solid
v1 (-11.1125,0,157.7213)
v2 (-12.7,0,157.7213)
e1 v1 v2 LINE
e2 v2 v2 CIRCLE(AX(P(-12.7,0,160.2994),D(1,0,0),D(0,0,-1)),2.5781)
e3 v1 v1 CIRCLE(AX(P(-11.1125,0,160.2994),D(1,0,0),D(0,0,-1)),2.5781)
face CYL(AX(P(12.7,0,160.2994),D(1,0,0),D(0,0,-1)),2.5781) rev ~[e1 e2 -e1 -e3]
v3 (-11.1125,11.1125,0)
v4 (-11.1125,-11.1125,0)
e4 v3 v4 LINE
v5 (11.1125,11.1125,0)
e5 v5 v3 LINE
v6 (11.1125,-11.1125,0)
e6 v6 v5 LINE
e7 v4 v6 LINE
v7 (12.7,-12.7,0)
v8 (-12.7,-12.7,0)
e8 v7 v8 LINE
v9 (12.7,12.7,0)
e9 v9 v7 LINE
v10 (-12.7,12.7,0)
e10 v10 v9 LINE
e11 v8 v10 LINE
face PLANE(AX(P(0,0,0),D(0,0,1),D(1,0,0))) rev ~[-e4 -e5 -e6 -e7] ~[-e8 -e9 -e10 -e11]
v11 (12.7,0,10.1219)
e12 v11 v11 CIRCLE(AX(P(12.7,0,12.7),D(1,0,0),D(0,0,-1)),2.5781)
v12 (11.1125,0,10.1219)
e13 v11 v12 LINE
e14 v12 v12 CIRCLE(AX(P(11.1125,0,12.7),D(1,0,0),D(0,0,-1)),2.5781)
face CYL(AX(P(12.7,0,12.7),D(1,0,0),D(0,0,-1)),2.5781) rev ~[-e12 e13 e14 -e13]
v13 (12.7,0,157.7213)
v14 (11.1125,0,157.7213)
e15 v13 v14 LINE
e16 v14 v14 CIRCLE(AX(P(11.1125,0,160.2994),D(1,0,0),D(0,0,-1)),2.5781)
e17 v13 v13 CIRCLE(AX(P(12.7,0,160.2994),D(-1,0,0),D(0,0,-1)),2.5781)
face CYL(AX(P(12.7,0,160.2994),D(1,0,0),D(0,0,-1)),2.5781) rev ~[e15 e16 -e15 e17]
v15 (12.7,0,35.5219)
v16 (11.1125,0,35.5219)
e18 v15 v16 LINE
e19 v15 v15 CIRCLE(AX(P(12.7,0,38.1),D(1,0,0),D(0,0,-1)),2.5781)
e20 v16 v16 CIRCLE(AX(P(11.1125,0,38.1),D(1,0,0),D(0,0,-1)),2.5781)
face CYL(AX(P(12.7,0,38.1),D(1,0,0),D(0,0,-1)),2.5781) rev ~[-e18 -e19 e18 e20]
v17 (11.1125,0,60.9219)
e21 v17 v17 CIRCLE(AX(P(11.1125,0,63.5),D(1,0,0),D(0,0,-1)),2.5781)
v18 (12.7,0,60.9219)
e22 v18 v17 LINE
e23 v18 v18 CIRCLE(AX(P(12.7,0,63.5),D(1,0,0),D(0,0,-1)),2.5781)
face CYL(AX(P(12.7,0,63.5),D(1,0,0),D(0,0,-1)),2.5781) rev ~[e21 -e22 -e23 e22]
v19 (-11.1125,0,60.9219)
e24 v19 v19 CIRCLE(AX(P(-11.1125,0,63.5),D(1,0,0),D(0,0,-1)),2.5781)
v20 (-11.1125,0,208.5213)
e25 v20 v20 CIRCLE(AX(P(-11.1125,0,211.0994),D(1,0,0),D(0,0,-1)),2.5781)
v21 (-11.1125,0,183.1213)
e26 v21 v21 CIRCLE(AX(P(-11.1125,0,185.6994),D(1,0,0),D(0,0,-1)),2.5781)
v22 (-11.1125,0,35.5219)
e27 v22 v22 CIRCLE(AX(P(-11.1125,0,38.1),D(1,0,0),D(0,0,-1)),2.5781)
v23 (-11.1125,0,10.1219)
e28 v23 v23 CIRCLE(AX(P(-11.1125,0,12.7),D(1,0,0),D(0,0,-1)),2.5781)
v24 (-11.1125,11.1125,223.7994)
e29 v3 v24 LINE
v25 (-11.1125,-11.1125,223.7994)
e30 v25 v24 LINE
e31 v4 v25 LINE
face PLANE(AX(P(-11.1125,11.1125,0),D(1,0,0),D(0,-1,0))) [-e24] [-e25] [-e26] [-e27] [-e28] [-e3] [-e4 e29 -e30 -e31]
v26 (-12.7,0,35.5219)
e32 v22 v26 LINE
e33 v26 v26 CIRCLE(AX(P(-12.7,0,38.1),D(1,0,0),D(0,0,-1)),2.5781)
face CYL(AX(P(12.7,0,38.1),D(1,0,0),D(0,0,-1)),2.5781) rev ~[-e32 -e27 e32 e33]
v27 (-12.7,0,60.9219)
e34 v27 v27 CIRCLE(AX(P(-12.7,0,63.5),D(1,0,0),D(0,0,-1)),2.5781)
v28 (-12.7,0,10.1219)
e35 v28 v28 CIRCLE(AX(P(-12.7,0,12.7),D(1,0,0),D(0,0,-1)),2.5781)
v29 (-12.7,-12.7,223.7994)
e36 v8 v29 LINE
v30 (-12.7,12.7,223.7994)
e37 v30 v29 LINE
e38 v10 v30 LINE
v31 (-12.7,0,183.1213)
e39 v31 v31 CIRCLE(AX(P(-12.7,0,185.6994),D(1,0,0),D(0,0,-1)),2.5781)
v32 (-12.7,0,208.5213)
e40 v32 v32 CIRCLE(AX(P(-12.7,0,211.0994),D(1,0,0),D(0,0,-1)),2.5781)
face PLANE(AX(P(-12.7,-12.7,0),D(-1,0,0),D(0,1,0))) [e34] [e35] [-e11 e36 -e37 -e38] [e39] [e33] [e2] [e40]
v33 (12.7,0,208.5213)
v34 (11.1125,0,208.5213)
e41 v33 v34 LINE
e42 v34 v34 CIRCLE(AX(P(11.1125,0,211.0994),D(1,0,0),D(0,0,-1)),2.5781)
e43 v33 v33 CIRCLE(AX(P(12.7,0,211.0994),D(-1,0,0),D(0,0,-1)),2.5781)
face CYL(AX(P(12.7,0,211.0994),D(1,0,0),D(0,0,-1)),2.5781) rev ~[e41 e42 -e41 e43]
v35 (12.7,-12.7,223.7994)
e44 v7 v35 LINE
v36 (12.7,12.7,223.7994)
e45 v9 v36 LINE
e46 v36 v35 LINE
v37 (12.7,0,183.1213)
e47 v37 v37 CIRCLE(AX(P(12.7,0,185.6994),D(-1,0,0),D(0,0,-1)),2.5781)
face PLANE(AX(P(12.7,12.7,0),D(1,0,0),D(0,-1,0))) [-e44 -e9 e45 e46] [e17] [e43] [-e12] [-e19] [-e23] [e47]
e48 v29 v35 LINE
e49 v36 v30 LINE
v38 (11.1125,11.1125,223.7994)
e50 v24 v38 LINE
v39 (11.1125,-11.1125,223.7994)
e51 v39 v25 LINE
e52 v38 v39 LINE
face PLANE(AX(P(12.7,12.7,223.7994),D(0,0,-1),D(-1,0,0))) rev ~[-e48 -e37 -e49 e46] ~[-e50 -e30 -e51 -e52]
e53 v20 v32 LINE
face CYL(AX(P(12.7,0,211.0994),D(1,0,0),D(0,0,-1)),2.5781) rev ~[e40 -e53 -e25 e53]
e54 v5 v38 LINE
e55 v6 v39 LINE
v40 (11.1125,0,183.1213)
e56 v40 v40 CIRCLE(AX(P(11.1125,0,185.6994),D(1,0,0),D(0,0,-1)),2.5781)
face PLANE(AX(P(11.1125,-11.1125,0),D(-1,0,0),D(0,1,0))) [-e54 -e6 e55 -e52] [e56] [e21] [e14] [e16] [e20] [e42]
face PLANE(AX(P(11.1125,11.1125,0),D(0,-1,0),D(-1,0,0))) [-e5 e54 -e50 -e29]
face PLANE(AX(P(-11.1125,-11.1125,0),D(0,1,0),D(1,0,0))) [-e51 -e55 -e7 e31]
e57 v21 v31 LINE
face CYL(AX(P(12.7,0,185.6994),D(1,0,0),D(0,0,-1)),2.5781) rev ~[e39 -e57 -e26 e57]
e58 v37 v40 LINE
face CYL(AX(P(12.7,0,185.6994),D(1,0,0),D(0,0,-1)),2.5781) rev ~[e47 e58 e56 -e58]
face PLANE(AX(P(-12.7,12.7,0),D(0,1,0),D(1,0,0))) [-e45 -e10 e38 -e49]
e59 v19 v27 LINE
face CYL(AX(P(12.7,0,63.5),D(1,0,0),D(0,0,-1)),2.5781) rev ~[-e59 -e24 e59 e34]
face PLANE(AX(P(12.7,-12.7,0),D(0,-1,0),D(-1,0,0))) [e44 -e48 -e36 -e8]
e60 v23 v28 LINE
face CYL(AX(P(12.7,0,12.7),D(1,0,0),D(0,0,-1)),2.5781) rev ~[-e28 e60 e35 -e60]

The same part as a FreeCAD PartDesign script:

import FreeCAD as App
import Part
import Sketcher
Q = App.Units.Quantity


def add_polygon(sketch, points):
    """Adds a closed chain of lines whose ends are joined by coincident constraints."""
    first, n = sketch.GeometryCount, len(points)
    for a, b in zip(points, points[1:] + points[:1]):
        sketch.addGeometry(Part.LineSegment(App.Vector(*a, 0), App.Vector(*b, 0)), False)
    for i in range(n):
        sketch.addConstraint(Sketcher.Constraint("Coincident", first + i, 2, first + (i + 1) % n, 1))

doc = App.newDocument("Part")
params = doc.addObject("Spreadsheet::Sheet", "Params")
for row, (alias, value) in enumerate([
    ("sketch1_width", "1 in"),
    ("pad1_length", "24 in"),
    ("sketch2_diameter", "0.203 in"),
    ("pocket2_length", "4 in"),
    ("sketch4_diameter", "0.203 in"),
    ("pocket3_length", "2 in"),
], start=1):
    params.set(f"A{row}", alias)
    params.set(f"B{row}", "=" + value)
    params.setAlias(f"B{row}", alias)

body = doc.addObject("PartDesign::Body", "Body")

sketch1 = body.newObject("Sketcher::SketchObject", "Sketch")
sketch1.AttachmentSupport = (doc.getObject("XY_Plane"), [""])
sketch1.MapMode = "FlatFace"
add_polygon(sketch1, [(-13, 13), (-13, -13), (13, -13), (13, 13)])
add_polygon(sketch1, [(-11, 11), (11, 11), (11, -11), (-11, -11)])
sketch1.addConstraint(Sketcher.Constraint("Vertical", 0))
sketch1.addConstraint(Sketcher.Constraint("Horizontal", 1))
sketch1.addConstraint(Sketcher.Constraint("Vertical", 2))
sketch1.addConstraint(Sketcher.Constraint("Horizontal", 3))
sketch1.addConstraint(Sketcher.Constraint("Horizontal", 4))
sketch1.addConstraint(Sketcher.Constraint("Vertical", 5))
sketch1.addConstraint(Sketcher.Constraint("Horizontal", 6))
sketch1.addConstraint(Sketcher.Constraint("Vertical", 7))
sketch1.addConstraint(Sketcher.Constraint("Symmetric", 0, 2, 2, 2, -1, 1))
sketch1.addConstraint(Sketcher.Constraint("Symmetric", 4, 2, 6, 2, -1, 1))
sketch1.addConstraint(Sketcher.Constraint("Equal", 3, 0))
sketch1.addConstraint(Sketcher.Constraint("Equal", 6, 5))
sketch1.addConstraint(Sketcher.Constraint("DistanceX", 1, 1, 1, 2, Q("1 in")))
sketch1.addConstraint(Sketcher.Constraint("DistanceX", 4, 2, 2, 2, Q("0.0625 in")))
sketch1.setExpression("Constraints[20]", "Params.sketch1_width")
pad1 = body.newObject("PartDesign::Pad", "Pad")
pad1.Profile = sketch1
pad1.setExpression("Length", "Params.pad1_length")

sketch2 = body.newObject("Sketcher::SketchObject", "Sketch001")
sketch2.AttachmentSupport = (doc.getObject("YZ_Plane"), [""])
sketch2.MapMode = "FlatFace"
sketch2.AttachmentOffset = App.Placement(App.Vector(0, 0, 0.5 * 25.4), App.Rotation())
sketch2.addGeometry(Part.Circle(App.Vector(0, 596.9, 0), App.Vector(0, 0, 1), 2.6), False)
sketch2.addGeometry(Part.Circle(App.Vector(0, 571.5, 0), App.Vector(0, 0, 1), 2.6), False)
sketch2.addGeometry(Part.Circle(App.Vector(0, 546.1, 0), App.Vector(0, 0, 1), 2.6), False)
sketch2.addGeometry(Part.Circle(App.Vector(0, 12.7, 0), App.Vector(0, 0, 1), 2.6), False)
sketch2.addGeometry(Part.Circle(App.Vector(0, 38.1, 0), App.Vector(0, 0, 1), 2.6), False)
sketch2.addGeometry(Part.Circle(App.Vector(0, 63.5, 0), App.Vector(0, 0, 1), 2.6), False)
sketch2.addConstraint(Sketcher.Constraint("Equal", 0, 1))
sketch2.addConstraint(Sketcher.Constraint("Equal", 1, 2))
sketch2.addConstraint(Sketcher.Constraint("Equal", 2, 3))
sketch2.addConstraint(Sketcher.Constraint("Equal", 3, 4))
sketch2.addConstraint(Sketcher.Constraint("Equal", 4, 5))
sketch2.addConstraint(Sketcher.Constraint("PointOnObject", 0, 3, -2))
sketch2.addConstraint(Sketcher.Constraint("PointOnObject", 1, 3, -2))
sketch2.addConstraint(Sketcher.Constraint("PointOnObject", 2, 3, -2))
sketch2.addConstraint(Sketcher.Constraint("PointOnObject", 3, 3, -2))
sketch2.addConstraint(Sketcher.Constraint("PointOnObject", 4, 3, -2))
sketch2.addConstraint(Sketcher.Constraint("PointOnObject", 5, 3, -2))
sketch2.addConstraint(Sketcher.Constraint("Diameter", 0, Q("0.203 in")))
sketch2.addConstraint(Sketcher.Constraint("DistanceY", 1, 3, 0, 3, Q("1 in")))
sketch2.addConstraint(Sketcher.Constraint("DistanceY", 2, 3, 1, 3, Q("1 in")))
sketch2.addConstraint(Sketcher.Constraint("DistanceY", 3, 3, 4, 3, Q("1 in")))
sketch2.addConstraint(Sketcher.Constraint("DistanceY", 4, 3, 5, 3, Q("1 in")))
sketch2.addConstraint(Sketcher.Constraint("DistanceY", -1, 1, 3, 3, Q("0.5 in")))
sketch2.addConstraint(Sketcher.Constraint("DistanceY", 3, 3, 2, 3, Q("21 in")))
sketch2.setExpression("Constraints[11]", "Params.sketch2_diameter")
pocket1 = body.newObject("PartDesign::Pocket", "Pocket")
pocket1.Profile = sketch2
pocket1.Type = "ThroughAll"

sketch3 = body.newObject("Sketcher::SketchObject", "Sketch002")
sketch3.AttachmentSupport = (doc.getObject("XZ_Plane"), [""])
sketch3.MapMode = "FlatFace"
sketch3.AttachmentOffset = App.Placement(App.Vector(0, 0, -0.5 * 25.4), App.Rotation())
add_polygon(sketch3, [(73, 691), (13, 224), (-14, 224), (-14, 682)])
sketch3.addConstraint(Sketcher.Constraint("Horizontal", 1))
sketch3.addConstraint(Sketcher.Constraint("Vertical", 2))
sketch3.addConstraint(Sketcher.Constraint("DistanceY", -1, 1, 0, 2, Q("8.811 in")))
sketch3.addConstraint(Sketcher.Constraint("DistanceX", -1, 1, 0, 2, Q("0.5 in")))
sketch3.addConstraint(Sketcher.Constraint("Angle", 3, Q("6.0893 deg")))
sketch3.addConstraint(Sketcher.Constraint("DistanceX", 1, 2, 1, 1, 26.3))
sketch3.addConstraint(Sketcher.Constraint("DistanceY", 2, 1, 2, 2, 457.7577))
sketch3.addConstraint(Sketcher.Constraint("DistanceX", 2, 2, 3, 2, Q("3.4061 in")))
pocket2 = body.newObject("PartDesign::Pocket", "Pocket001")
pocket2.Profile = sketch3
pocket2.setExpression("Length", "Params.pocket2_length")
pocket2.Reversed = True

sketch4 = body.newObject("Sketcher::SketchObject", "Sketch003")
sketch4.AttachmentSupport = (doc.getObject("YZ_Plane"), [""])
sketch4.MapMode = "FlatFace"
sketch4.AttachmentOffset = App.Placement(App.Vector(0, 0, 0.5 * 25.4), App.Rotation())
sketch4.addGeometry(Part.Circle(App.Vector(0, 211.1, 0), App.Vector(0, 0, 1), 2.6), False)
sketch4.addGeometry(Part.Circle(App.Vector(0, 160.3, 0), App.Vector(0, 0, 1), 2.6), False)
sketch4.addGeometry(Part.Circle(App.Vector(0, 185.7, 0), App.Vector(0, 0, 1), 2.6), False)
sketch4.addConstraint(Sketcher.Constraint("Equal", 0, 1))
sketch4.addConstraint(Sketcher.Constraint("Equal", 1, 2))
sketch4.addConstraint(Sketcher.Constraint("PointOnObject", 0, 3, -2))
sketch4.addConstraint(Sketcher.Constraint("PointOnObject", 1, 3, -2))
sketch4.addConstraint(Sketcher.Constraint("PointOnObject", 2, 3, -2))
sketch4.addConstraint(Sketcher.Constraint("Diameter", 0, Q("0.203 in")))
sketch4.addConstraint(Sketcher.Constraint("DistanceY", 2, 3, 0, 3, Q("1 in")))
sketch4.addConstraint(Sketcher.Constraint("DistanceY", 1, 3, 2, 3, Q("1 in")))
sketch4.addConstraint(Sketcher.Constraint("DistanceY", -1, 1, 0, 3, Q("8.311 in")))
sketch4.setExpression("Constraints[5]", "Params.sketch4_diameter")
pocket3 = body.newObject("PartDesign::Pocket", "Pocket002")
pocket3.Profile = sketch4
pocket3.setExpression("Length", "Params.pocket3_length")

doc.recompute()
